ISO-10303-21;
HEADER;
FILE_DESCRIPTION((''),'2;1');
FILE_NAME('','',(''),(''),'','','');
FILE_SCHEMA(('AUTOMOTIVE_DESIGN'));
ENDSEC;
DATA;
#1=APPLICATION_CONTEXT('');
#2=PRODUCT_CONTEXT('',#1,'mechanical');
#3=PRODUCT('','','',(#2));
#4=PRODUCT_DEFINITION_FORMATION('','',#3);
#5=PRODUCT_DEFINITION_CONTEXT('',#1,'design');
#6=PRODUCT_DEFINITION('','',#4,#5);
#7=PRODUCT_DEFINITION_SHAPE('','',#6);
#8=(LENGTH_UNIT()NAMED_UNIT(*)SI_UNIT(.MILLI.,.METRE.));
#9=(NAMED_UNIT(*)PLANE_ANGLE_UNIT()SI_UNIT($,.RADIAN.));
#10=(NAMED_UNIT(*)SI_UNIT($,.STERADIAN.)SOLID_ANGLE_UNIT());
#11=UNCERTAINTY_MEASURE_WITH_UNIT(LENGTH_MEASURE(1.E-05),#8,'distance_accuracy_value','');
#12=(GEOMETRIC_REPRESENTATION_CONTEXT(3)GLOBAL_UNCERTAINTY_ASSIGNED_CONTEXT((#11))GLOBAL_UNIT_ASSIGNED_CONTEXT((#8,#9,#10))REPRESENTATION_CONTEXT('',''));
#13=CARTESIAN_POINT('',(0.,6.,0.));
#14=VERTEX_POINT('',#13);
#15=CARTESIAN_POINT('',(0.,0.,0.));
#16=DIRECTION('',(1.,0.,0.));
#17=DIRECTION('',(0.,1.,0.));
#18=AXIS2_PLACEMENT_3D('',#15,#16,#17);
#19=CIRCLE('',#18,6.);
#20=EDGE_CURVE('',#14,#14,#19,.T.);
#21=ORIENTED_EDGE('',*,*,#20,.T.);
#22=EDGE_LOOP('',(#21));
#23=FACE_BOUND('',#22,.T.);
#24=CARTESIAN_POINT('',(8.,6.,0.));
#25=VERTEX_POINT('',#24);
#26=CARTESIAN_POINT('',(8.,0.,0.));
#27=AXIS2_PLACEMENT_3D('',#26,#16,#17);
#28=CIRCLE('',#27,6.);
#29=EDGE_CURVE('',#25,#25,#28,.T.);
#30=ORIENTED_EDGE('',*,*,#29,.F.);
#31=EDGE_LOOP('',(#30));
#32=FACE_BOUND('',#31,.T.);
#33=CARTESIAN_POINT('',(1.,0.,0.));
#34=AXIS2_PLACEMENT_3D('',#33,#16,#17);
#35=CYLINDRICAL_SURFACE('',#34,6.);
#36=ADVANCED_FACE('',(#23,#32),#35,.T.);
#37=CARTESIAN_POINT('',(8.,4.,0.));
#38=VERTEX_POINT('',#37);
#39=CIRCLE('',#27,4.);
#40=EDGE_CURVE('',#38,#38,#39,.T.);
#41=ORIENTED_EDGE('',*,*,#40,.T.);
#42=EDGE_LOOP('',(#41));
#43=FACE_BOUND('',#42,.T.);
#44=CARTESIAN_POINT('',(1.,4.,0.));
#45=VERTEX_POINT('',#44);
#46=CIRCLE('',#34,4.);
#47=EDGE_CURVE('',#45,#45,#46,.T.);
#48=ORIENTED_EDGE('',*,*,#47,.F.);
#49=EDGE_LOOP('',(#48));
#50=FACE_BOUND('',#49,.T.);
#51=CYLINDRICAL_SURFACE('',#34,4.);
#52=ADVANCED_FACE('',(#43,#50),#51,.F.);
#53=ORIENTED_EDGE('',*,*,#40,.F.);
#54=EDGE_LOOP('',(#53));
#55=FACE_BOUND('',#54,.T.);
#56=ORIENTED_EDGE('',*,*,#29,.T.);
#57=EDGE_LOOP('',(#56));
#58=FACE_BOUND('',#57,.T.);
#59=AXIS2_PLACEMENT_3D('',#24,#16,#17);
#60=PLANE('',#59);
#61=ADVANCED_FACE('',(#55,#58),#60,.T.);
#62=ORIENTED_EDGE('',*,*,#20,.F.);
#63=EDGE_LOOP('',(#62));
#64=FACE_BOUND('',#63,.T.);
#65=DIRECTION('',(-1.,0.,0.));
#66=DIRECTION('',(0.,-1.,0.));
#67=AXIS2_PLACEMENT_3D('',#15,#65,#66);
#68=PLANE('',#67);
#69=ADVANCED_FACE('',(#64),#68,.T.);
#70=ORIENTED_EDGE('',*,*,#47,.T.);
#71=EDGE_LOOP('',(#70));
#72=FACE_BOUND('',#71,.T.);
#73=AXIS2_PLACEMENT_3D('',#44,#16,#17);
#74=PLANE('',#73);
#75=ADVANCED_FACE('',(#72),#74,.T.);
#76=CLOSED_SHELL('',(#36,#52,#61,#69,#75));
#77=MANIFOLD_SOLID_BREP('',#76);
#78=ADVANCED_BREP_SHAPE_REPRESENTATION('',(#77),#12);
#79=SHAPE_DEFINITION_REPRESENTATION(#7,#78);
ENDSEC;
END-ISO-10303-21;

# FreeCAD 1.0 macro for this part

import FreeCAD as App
import Part
import Sketcher
Q = App.Units.Quantity

doc = App.newDocument("Part")
body = doc.addObject("PartDesign::Body", "Body")

# Sketch on XY plane
sketch1 = body.newObject("Sketcher::SketchObject", "Sketch")
sketch1.AttachmentSupport = (doc.getObject("XY_Plane"), [""])
sketch1.MapMode = "FlatFace"
sketch1.addGeometry([
    Part.LineSegment(App.Vector(0, 6, 0), App.Vector(0, 0, 0)),  # 0
    Part.LineSegment(App.Vector(0, 0, 0), App.Vector(1, 0, 0)),  # 1
    Part.LineSegment(App.Vector(1, 0, 0), App.Vector(1, 4, 0)),  # 2
    Part.LineSegment(App.Vector(1, 4, 0), App.Vector(8, 4, 0)),  # 3
    Part.LineSegment(App.Vector(8, 4, 0), App.Vector(8, 6, 0)),  # 4
    Part.LineSegment(App.Vector(8, 6, 0), App.Vector(0, 6, 0)),  # 5
], False)
sketch1.addConstraint([
    Sketcher.Constraint("Coincident", 0, 2, 1, 1),
    Sketcher.Constraint("Coincident", 1, 2, 2, 1),
    Sketcher.Constraint("Coincident", 2, 2, 3, 1),
    Sketcher.Constraint("Coincident", 3, 2, 4, 1),
    Sketcher.Constraint("Coincident", 4, 2, 5, 1),
    Sketcher.Constraint("Coincident", 5, 2, 0, 1),
    Sketcher.Constraint("Vertical", 0),
    Sketcher.Constraint("Horizontal", 1),
    Sketcher.Constraint("Vertical", 2),
    Sketcher.Constraint("Horizontal", 3),
    Sketcher.Constraint("Vertical", 4),
    Sketcher.Constraint("Horizontal", 5),
    Sketcher.Constraint("Coincident", 0, 2, -1, 1),
    Sketcher.Constraint("DistanceX", 1, 1, 1, 2, Q("1 mm")),
    Sketcher.Constraint("DistanceX", 3, 1, 3, 2, Q("7 mm")),
    Sketcher.Constraint("DistanceY", 0, 2, 0, 1, Q("6 mm")),
    Sketcher.Constraint("DistanceY", 2, 1, 2, 2, Q("4 mm")),
])
revolution = body.newObject("PartDesign::Revolution", "Revolution")
revolution.Profile = sketch1
revolution.ReferenceAxis = (sketch1, ["H_Axis"])
revolution.Angle = 360

doc.recompute()
